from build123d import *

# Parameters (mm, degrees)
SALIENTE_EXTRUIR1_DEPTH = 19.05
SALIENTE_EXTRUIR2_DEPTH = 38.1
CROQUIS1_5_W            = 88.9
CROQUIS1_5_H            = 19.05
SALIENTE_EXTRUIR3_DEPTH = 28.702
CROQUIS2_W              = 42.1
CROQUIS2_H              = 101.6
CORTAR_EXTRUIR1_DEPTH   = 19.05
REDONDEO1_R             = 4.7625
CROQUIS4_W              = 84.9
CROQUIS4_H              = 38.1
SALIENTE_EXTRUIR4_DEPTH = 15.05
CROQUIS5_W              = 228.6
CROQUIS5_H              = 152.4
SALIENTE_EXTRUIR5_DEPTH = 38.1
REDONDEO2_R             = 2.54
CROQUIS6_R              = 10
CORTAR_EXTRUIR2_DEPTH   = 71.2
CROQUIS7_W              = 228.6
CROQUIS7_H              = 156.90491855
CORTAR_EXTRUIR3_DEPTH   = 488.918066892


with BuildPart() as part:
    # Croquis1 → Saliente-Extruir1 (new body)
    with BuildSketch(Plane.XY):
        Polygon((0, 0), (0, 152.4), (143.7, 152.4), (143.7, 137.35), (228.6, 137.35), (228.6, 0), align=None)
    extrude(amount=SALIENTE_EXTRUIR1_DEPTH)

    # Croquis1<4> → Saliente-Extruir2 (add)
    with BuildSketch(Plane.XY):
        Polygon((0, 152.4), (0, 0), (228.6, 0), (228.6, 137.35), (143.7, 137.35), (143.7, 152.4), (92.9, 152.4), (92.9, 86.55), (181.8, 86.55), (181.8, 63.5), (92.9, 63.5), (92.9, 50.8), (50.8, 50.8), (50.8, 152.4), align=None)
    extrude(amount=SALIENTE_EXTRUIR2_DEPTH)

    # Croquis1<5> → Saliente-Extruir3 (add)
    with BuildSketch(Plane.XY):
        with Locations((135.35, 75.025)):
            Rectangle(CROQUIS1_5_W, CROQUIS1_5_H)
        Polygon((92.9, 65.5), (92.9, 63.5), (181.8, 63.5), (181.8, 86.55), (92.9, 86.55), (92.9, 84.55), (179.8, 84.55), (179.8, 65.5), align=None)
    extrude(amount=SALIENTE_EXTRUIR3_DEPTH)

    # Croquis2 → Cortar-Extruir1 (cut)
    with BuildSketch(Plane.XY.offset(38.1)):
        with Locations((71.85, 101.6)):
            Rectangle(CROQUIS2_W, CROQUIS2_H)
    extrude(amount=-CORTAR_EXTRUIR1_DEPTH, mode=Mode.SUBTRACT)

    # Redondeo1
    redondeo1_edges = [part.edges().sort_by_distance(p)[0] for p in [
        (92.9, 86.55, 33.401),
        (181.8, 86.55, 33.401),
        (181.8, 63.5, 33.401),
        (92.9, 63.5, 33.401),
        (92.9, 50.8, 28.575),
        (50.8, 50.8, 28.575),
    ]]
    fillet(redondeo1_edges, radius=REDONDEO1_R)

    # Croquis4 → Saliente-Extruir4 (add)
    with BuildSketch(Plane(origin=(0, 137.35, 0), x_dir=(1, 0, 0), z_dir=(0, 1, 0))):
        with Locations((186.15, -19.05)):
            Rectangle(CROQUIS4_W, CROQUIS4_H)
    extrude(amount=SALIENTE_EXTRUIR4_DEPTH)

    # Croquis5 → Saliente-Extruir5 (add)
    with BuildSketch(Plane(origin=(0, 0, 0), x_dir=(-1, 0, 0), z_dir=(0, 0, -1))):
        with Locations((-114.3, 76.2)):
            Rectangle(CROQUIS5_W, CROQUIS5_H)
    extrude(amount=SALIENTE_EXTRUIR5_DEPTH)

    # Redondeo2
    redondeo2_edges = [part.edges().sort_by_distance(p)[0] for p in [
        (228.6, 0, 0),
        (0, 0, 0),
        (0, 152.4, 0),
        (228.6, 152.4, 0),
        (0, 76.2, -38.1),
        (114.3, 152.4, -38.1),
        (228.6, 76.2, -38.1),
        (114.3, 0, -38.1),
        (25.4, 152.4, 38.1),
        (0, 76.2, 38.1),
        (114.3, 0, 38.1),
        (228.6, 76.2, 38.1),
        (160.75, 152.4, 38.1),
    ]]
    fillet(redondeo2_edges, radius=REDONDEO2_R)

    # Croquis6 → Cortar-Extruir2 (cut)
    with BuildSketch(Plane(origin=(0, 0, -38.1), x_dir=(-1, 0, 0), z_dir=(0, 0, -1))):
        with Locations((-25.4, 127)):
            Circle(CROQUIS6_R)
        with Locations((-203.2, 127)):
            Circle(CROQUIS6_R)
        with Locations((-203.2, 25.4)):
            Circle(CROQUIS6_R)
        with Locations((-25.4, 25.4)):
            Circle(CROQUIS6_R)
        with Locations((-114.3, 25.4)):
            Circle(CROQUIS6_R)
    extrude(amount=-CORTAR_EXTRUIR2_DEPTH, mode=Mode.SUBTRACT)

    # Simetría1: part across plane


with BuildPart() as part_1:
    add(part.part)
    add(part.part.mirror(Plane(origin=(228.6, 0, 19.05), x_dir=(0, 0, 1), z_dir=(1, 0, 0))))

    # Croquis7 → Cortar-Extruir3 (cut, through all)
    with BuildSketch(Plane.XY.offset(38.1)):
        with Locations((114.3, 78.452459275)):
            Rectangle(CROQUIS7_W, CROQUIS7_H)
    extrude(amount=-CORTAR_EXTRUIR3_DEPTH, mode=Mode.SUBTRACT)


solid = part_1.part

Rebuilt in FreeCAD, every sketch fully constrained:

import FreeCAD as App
import Part
import Sketcher
Q = App.Units.Quantity


def edges_at(feature, points):
    """Names of the edges that pass closest to the given points."""
    edges = feature.Shape.Edges
    near = lambda p: min(range(len(edges)), key=lambda i: edges[i].distToShape(Part.Vertex(*p))[0])
    return sorted({f"Edge{near(p) + 1}" for p in points})


def add_polygon(sketch, points):
    """Adds a closed chain of lines whose ends are joined by coincident constraints."""
    first, n = sketch.GeometryCount, len(points)
    for a, b in zip(points, points[1:] + points[:1]):
        sketch.addGeometry(Part.LineSegment(App.Vector(*a, 0), App.Vector(*b, 0)), False)
    for i in range(n):
        sketch.addConstraint(Sketcher.Constraint("Coincident", first + i, 2, first + (i + 1) % n, 1))

doc = App.newDocument("Part")
body = doc.addObject("PartDesign::Body", "Body")

# Sketch on XY plane
sketch1 = body.newObject("Sketcher::SketchObject", "Sketch")
sketch1.AttachmentSupport = (doc.getObject("XY_Plane"), [""])
sketch1.MapMode = "FlatFace"
add_polygon(sketch1, [(0, 152), (0, 0), (229, 0), (229, 137), (144, 137), (144, 152)])  # lines 0-5
sketch1.addConstraint(Sketcher.Constraint("Vertical", 0))
sketch1.addConstraint(Sketcher.Constraint("Horizontal", 1))
sketch1.addConstraint(Sketcher.Constraint("Vertical", 2))
sketch1.addConstraint(Sketcher.Constraint("Horizontal", 3))
sketch1.addConstraint(Sketcher.Constraint("Vertical", 4))
sketch1.addConstraint(Sketcher.Constraint("Horizontal", 5))
sketch1.addConstraint(Sketcher.Constraint("Coincident", 0, 2, -1, 1))
sketch1.addConstraint(Sketcher.Constraint("DistanceX", 1, 1, 1, 2, Q("9 in")))
sketch1.addConstraint(Sketcher.Constraint("DistanceY", 0, 2, 0, 1, Q("6 in")))
sketch1.addConstraint(Sketcher.Constraint("DistanceX", 3, 2, 3, 1, 84.9))
sketch1.addConstraint(Sketcher.Constraint("DistanceY", 2, 1, 2, 2, 137.35))
pad1 = body.newObject("PartDesign::Pad", "Pad")
pad1.Profile = sketch1
pad1.Length = Q("0.75 in")

# Sketch on XY plane
sketch2 = body.newObject("Sketcher::SketchObject", "Sketch001")
sketch2.AttachmentSupport = (doc.getObject("XY_Plane"), [""])
sketch2.MapMode = "FlatFace"
add_polygon(sketch2, [(0, 152), (0, 0), (229, 0), (229, 137), (144, 137), (144, 152), (93, 152), (93, 87), (182, 87), (182, 64), (93, 64), (93, 51), (51, 51), (51, 152)])  # lines 0-13
sketch2.addConstraint(Sketcher.Constraint("Vertical", 0))
sketch2.addConstraint(Sketcher.Constraint("Horizontal", 1))
sketch2.addConstraint(Sketcher.Constraint("Vertical", 2))
sketch2.addConstraint(Sketcher.Constraint("Horizontal", 3))
sketch2.addConstraint(Sketcher.Constraint("Vertical", 4))
sketch2.addConstraint(Sketcher.Constraint("Horizontal", 5))
sketch2.addConstraint(Sketcher.Constraint("Vertical", 6))
sketch2.addConstraint(Sketcher.Constraint("Horizontal", 7))
sketch2.addConstraint(Sketcher.Constraint("Vertical", 8))
sketch2.addConstraint(Sketcher.Constraint("Horizontal", 9))
sketch2.addConstraint(Sketcher.Constraint("Vertical", 10))
sketch2.addConstraint(Sketcher.Constraint("Horizontal", 11))
sketch2.addConstraint(Sketcher.Constraint("Vertical", 12))
sketch2.addConstraint(Sketcher.Constraint("Horizontal", 13))
sketch2.addConstraint(Sketcher.Constraint("Coincident", 0, 2, -1, 1))
sketch2.addConstraint(Sketcher.Constraint("Horizontal", 5, 2, 12, 2))
sketch2.addConstraint(Sketcher.Constraint("Vertical", 6, 2, 9, 2))
sketch2.addConstraint(Sketcher.Constraint("Equal", 5, 13))
sketch2.addConstraint(Sketcher.Constraint("DistanceX", 1, 1, 1, 2, Q("9 in")))
sketch2.addConstraint(Sketcher.Constraint("DistanceX", 5, 2, 5, 1, Q("2 in")))
sketch2.addConstraint(Sketcher.Constraint("DistanceY", 0, 2, 0, 1, Q("6 in")))
sketch2.addConstraint(Sketcher.Constraint("DistanceY", 12, 1, 12, 2, Q("4 in")))
sketch2.addConstraint(Sketcher.Constraint("DistanceX", 7, 1, 7, 2, Q("3.5 in")))
sketch2.addConstraint(Sketcher.Constraint("DistanceY", 10, 2, 10, 1, Q("0.5 in")))
sketch2.addConstraint(Sketcher.Constraint("DistanceY", 6, 2, 3, 2, Q("2 in")))
sketch2.addConstraint(Sketcher.Constraint("DistanceX", 3, 2, 3, 1, 84.9))
sketch2.addConstraint(Sketcher.Constraint("DistanceY", 2, 1, 2, 2, 137.35))
pad2 = body.newObject("PartDesign::Pad", "Pad001")
pad2.Profile = sketch2
pad2.Length = Q("1.5 in")

# Sketch on XY plane
sketch3 = body.newObject("Sketcher::SketchObject", "Sketch002")
sketch3.AttachmentSupport = (doc.getObject("XY_Plane"), [""])
sketch3.MapMode = "FlatFace"
add_polygon(sketch3, [(90.9, 84.5), (90.9, 65.5), (92.9, 65.5), (92.9, 63.5), (181.8, 63.5), (181.8, 86.5), (92.9, 86.5), (92.9, 84.5)])  # lines 0-7
sketch3.addConstraint(Sketcher.Constraint("Vertical", 0))
sketch3.addConstraint(Sketcher.Constraint("Horizontal", 1))
sketch3.addConstraint(Sketcher.Constraint("Vertical", 2))
sketch3.addConstraint(Sketcher.Constraint("Horizontal", 3))
sketch3.addConstraint(Sketcher.Constraint("Vertical", 4))
sketch3.addConstraint(Sketcher.Constraint("Horizontal", 5))
sketch3.addConstraint(Sketcher.Constraint("Vertical", 6))
sketch3.addConstraint(Sketcher.Constraint("Horizontal", 7))
sketch3.addConstraint(Sketcher.Constraint("Vertical", 2, 2, 5, 2))
sketch3.addConstraint(Sketcher.Constraint("Equal", 7, 2))
sketch3.addConstraint(Sketcher.Constraint("Equal", 2, 6))
sketch3.addConstraint(Sketcher.Constraint("DistanceX", 3, 1, 3, 2, Q("3.5 in")))
sketch3.addConstraint(Sketcher.Constraint("DistanceY", 0, 2, 0, 1, Q("0.75 in")))
sketch3.addConstraint(Sketcher.Constraint("DistanceY", -1, 1, 2, 2, Q("2.5 in")))
sketch3.addConstraint(Sketcher.Constraint("DistanceX", 1, 1, 1, 2, 2.0))
sketch3.addConstraint(Sketcher.Constraint("DistanceX", -1, 1, 0, 2, 90.9))
pad3 = body.newObject("PartDesign::Pad", "Pad002")
pad3.Profile = sketch3
pad3.Length = Q("1.13 in")

# Sketch on XY plane
sketch4 = body.newObject("Sketcher::SketchObject", "Sketch003")
sketch4.AttachmentSupport = (doc.getObject("XY_Plane"), [""])
sketch4.MapMode = "FlatFace"
sketch4.AttachmentOffset = App.Placement(App.Vector(0, 0, 1.5 * 25.4), App.Rotation())
add_polygon(sketch4, [(51, 152), (51, 51), (93, 51), (93, 152)])  # lines 0-3
sketch4.addConstraint(Sketcher.Constraint("Vertical", 0))
sketch4.addConstraint(Sketcher.Constraint("Horizontal", 1))
sketch4.addConstraint(Sketcher.Constraint("Vertical", 2))
sketch4.addConstraint(Sketcher.Constraint("Horizontal", 3))
sketch4.addConstraint(Sketcher.Constraint("DistanceY", 0, 2, 0, 1, Q("4 in")))
sketch4.addConstraint(Sketcher.Constraint("DistanceX", -1, 1, 0, 2, Q("2 in")))
sketch4.addConstraint(Sketcher.Constraint("DistanceY", -1, 1, 0, 2, Q("2 in")))
sketch4.addConstraint(Sketcher.Constraint("DistanceX", 1, 1, 1, 2, 42.1))
pocket1 = body.newObject("PartDesign::Pocket", "Pocket")
pocket1.Profile = sketch4
pocket1.Length = Q("0.75 in")
doc.recompute()

fillet = body.newObject("PartDesign::Fillet", "Fillet")
fillet.Base = (pocket1, edges_at(pocket1, [
    (92.9, 86.55, 33.401),
    (181.8, 86.55, 33.401),
    (181.8, 63.5, 33.401),
    (92.9, 63.5, 33.401),
    (92.9, 50.8, 28.575),
    (50.8, 50.8, 28.575),
]))
fillet.Radius = Q("0.1875 in")

# Sketch on XZ plane
sketch5 = body.newObject("Sketcher::SketchObject", "Sketch004")
sketch5.AttachmentSupport = (doc.getObject("XZ_Plane"), [""])
sketch5.MapMode = "FlatFace"
sketch5.AttachmentOffset = App.Placement(App.Vector(0, 0, -137.35), App.Rotation())
add_polygon(sketch5, [(144, 0), (144, 38), (229, 38), (229, 0)])  # lines 0-3
sketch5.addConstraint(Sketcher.Constraint("Vertical", 0))
sketch5.addConstraint(Sketcher.Constraint("Horizontal", 1))
sketch5.addConstraint(Sketcher.Constraint("Vertical", 2))
sketch5.addConstraint(Sketcher.Constraint("Horizontal", 3))
sketch5.addConstraint(Sketcher.Constraint("PointOnObject", 2, 2, -1))
sketch5.addConstraint(Sketcher.Constraint("DistanceY", 0, 1, 0, 2, Q("1.5 in")))
sketch5.addConstraint(Sketcher.Constraint("DistanceX", -1, 1, 1, 2, Q("9 in")))
sketch5.addConstraint(Sketcher.Constraint("DistanceX", 1, 1, 1, 2, 84.9))
pad4 = body.newObject("PartDesign::Pad", "Pad003")
pad4.Profile = sketch5
pad4.Length = 15.05
pad4.Reversed = True

# Sketch on XY plane
sketch6 = body.newObject("Sketcher::SketchObject", "Sketch005")
sketch6.AttachmentSupport = (doc.getObject("XY_Plane"), [""])
sketch6.MapMode = "FlatFace"
add_polygon(sketch6, [(229, 152), (229, 0), (0, 0), (0, 152)])  # lines 0-3
sketch6.addConstraint(Sketcher.Constraint("Vertical", 0))
sketch6.addConstraint(Sketcher.Constraint("Horizontal", 1))
sketch6.addConstraint(Sketcher.Constraint("Vertical", 2))
sketch6.addConstraint(Sketcher.Constraint("Horizontal", 3))
sketch6.addConstraint(Sketcher.Constraint("Coincident", 1, 2, -1, 1))
sketch6.addConstraint(Sketcher.Constraint("DistanceX", 1, 2, 1, 1, Q("9 in")))
sketch6.addConstraint(Sketcher.Constraint("DistanceY", 0, 2, 0, 1, Q("6 in")))
pad5 = body.newObject("PartDesign::Pad", "Pad004")
pad5.Profile = sketch6
pad5.Length = Q("1.5 in")
pad5.Reversed = True
doc.recompute()

fillet2 = body.newObject("PartDesign::Fillet", "Fillet001")
fillet2.Base = (pad5, edges_at(pad5, [
    (228.6, 0, 0),
    (0, 0, 0),
    (0, 152.4, 0),
    (228.6, 152.4, 0),
    (0, 76.2, -38.1),
    (114.3, 152.4, -38.1),
    (228.6, 76.2, -38.1),
    (114.3, 0, -38.1),
    (25.4, 152.4, 38.1),
    (0, 76.2, 38.1),
    (114.3, 0, 38.1),
    (228.6, 76.2, 38.1),
    (160.75, 152.4, 38.1),
]))
fillet2.Radius = Q("0.1 in")

# Sketch on XY plane
sketch7 = body.newObject("Sketcher::SketchObject", "Sketch006")
sketch7.AttachmentSupport = (doc.getObject("XY_Plane"), [""])
sketch7.MapMode = "FlatFace"
sketch7.AttachmentOffset = App.Placement(App.Vector(0, 0, -1.5 * 25.4), App.Rotation())
sketch7.addGeometry(Part.Circle(App.Vector(25, 127, 0), App.Vector(0, 0, 1), 10), False)
sketch7.addGeometry(Part.Circle(App.Vector(203, 127, 0), App.Vector(0, 0, 1), 10), False)
sketch7.addGeometry(Part.Circle(App.Vector(203, 25, 0), App.Vector(0, 0, 1), 10), False)
sketch7.addGeometry(Part.Circle(App.Vector(25, 25, 0), App.Vector(0, 0, 1), 10), False)
sketch7.addGeometry(Part.Circle(App.Vector(114, 25, 0), App.Vector(0, 0, 1), 10), False)
sketch7.addConstraint(Sketcher.Constraint("Equal", 0, 1))
sketch7.addConstraint(Sketcher.Constraint("Equal", 1, 2))
sketch7.addConstraint(Sketcher.Constraint("Equal", 2, 3))
sketch7.addConstraint(Sketcher.Constraint("Equal", 3, 4))
sketch7.addConstraint(Sketcher.Constraint("Horizontal", 0, 3, 1, 3))
sketch7.addConstraint(Sketcher.Constraint("Horizontal", 2, 3, 3, 3))
sketch7.addConstraint(Sketcher.Constraint("Horizontal", 3, 3, 4, 3))
sketch7.addConstraint(Sketcher.Constraint("Vertical", 1, 3, 2, 3))
sketch7.addConstraint(Sketcher.Constraint("Vertical", 0, 3, 3, 3))
sketch7.addConstraint(Sketcher.Constraint("DistanceX", -1, 1, 0, 3, Q("1 in")))
sketch7.addConstraint(Sketcher.Constraint("DistanceY", -1, 1, 0, 3, Q("5 in")))
sketch7.addConstraint(Sketcher.Constraint("DistanceX", -1, 1, 1, 3, Q("8 in")))
sketch7.addConstraint(Sketcher.Constraint("DistanceY", -1, 1, 2, 3, Q("1 in")))
sketch7.addConstraint(Sketcher.Constraint("DistanceX", -1, 1, 4, 3, Q("4.5 in")))
sketch7.addConstraint(Sketcher.Constraint("Diameter", 0, 20.0))
pocket2 = body.newObject("PartDesign::Pocket", "Pocket001")
pocket2.Profile = sketch7
pocket2.Length = 71.2
pocket2.Reversed = True
body2 = doc.addObject("PartDesign::Body", "Body001")
doc.recompute()

body2.BaseFeature = body
doc.recompute()

mirroring = doc.addObject("Part::Mirroring", "Mirroring")
mirroring.Source = body
mirroring.Base = App.Vector(228.6, 0, 19.05)
mirroring.Normal = App.Vector(1, 0, 0)
body3 = doc.addObject("PartDesign::Body", "Body002")
body3.BaseFeature = mirroring
boolean = body2.newObject("PartDesign::Boolean", "Boolean")
boolean.Type = "Fuse"
boolean.addObjects([body3])
doc.recompute()

# Sketch on XY plane
sketch8 = body2.newObject("Sketcher::SketchObject", "Sketch007")
sketch8.AttachmentSupport = (doc.getObject("XY_Plane001"), [""])
sketch8.MapMode = "FlatFace"
sketch8.AttachmentOffset = App.Placement(App.Vector(0, 0, 1.5 * 25.4), App.Rotation())
add_polygon(sketch8, [(0, 157), (0, 0), (229, 0), (229, 157)])  # lines 0-3
sketch8.addConstraint(Sketcher.Constraint("Vertical", 0))
sketch8.addConstraint(Sketcher.Constraint("Horizontal", 1))
sketch8.addConstraint(Sketcher.Constraint("Vertical", 2))
sketch8.addConstraint(Sketcher.Constraint("Horizontal", 3))
sketch8.addConstraint(Sketcher.Constraint("Coincident", 0, 2, -1, 1))
sketch8.addConstraint(Sketcher.Constraint("DistanceX", 1, 1, 1, 2, Q("9 in")))
sketch8.addConstraint(Sketcher.Constraint("DistanceY", 0, 2, 0, 1, 156.904919))
pocket3 = body2.newObject("PartDesign::Pocket", "Pocket002")
pocket3.Profile = sketch8
pocket3.Type = "ThroughAll"
mirroring.Visibility = False

doc.recompute()
